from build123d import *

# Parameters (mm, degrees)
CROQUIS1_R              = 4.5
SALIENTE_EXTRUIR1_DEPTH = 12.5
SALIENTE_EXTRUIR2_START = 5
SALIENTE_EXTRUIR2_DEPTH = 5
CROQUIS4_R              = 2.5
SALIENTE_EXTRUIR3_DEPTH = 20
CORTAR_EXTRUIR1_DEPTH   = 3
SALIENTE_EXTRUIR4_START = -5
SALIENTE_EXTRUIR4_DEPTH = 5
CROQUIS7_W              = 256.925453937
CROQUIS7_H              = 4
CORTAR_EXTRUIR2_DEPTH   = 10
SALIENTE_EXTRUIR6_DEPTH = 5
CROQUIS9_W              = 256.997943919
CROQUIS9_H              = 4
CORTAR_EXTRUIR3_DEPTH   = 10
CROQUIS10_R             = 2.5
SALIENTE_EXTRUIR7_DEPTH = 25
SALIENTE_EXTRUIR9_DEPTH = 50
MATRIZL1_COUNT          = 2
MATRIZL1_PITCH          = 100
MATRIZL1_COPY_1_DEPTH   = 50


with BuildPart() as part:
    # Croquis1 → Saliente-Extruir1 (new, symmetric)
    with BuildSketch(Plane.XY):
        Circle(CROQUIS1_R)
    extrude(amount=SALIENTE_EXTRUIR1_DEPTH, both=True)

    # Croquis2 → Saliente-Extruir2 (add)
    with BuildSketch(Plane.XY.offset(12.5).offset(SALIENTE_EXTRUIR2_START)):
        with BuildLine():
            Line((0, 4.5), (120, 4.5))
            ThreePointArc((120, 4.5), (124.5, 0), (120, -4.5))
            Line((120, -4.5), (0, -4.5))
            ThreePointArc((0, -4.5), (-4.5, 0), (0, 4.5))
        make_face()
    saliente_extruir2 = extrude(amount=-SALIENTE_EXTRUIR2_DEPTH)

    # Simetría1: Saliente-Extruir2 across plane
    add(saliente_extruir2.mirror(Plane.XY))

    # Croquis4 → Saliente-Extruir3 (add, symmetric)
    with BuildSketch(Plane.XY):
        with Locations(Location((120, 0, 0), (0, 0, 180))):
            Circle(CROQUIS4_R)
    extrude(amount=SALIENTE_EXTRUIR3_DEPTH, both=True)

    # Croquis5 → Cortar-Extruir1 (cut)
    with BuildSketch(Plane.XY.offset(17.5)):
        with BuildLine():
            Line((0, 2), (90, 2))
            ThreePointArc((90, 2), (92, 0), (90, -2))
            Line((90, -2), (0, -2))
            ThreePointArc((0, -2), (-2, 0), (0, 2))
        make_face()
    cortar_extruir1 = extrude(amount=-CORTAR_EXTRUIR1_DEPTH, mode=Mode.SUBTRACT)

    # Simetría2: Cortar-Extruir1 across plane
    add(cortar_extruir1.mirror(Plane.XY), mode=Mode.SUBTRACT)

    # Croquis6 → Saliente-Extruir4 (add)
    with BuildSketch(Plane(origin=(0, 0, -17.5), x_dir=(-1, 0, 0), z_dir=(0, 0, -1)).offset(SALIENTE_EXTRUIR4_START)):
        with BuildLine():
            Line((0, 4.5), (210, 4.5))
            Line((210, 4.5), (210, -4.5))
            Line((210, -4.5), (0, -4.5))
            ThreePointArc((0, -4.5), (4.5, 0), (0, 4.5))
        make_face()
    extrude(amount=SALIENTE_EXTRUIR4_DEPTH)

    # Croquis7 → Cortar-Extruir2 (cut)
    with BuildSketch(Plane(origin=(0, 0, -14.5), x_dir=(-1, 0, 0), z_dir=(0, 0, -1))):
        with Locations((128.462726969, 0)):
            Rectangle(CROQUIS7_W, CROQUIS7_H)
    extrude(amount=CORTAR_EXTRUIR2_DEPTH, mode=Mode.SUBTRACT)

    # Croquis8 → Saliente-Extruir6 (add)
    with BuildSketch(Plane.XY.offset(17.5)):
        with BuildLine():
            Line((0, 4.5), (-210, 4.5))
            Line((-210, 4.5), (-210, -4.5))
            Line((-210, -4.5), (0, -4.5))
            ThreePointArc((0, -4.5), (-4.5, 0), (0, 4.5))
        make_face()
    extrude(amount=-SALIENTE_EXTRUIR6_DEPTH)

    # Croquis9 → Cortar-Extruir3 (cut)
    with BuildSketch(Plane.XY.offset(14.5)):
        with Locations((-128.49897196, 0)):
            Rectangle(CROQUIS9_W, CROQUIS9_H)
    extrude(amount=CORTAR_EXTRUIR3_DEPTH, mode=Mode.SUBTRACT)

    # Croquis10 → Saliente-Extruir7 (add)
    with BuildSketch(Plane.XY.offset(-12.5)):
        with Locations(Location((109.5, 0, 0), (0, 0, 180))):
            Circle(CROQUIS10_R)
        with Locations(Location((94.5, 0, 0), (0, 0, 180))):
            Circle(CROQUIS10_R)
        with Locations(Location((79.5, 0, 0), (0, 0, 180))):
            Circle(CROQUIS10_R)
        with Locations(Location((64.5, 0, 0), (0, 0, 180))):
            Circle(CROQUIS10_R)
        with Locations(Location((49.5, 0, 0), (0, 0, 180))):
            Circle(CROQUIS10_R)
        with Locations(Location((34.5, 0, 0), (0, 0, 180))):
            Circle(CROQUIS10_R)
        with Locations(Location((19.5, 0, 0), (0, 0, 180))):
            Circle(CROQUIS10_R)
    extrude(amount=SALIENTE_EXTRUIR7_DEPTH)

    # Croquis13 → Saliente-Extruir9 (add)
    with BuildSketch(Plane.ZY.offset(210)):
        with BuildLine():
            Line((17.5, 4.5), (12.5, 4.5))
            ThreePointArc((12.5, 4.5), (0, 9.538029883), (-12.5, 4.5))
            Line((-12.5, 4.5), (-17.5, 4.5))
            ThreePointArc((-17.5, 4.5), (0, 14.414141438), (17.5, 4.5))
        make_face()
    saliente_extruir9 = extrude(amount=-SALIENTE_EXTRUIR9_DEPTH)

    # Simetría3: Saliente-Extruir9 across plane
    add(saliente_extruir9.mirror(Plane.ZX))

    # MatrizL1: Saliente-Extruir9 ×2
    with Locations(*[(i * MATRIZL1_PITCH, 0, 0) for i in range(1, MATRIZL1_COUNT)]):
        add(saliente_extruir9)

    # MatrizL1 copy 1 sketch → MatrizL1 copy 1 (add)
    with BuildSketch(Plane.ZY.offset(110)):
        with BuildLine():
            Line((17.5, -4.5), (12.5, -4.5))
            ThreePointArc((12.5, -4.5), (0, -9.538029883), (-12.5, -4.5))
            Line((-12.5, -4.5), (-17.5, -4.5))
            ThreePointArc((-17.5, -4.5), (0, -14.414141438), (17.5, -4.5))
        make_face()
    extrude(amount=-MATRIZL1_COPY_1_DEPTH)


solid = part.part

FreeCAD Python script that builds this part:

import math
import FreeCAD as App
import Part
import Sketcher
from FreeCAD import Vector

doc = App.newDocument("Part")
body = doc.addObject("PartDesign::Body", "Body")

# Sketch on XY plane
sketch1 = body.newObject("Sketcher::SketchObject", "Sketch")
sketch1.AttachmentSupport = (doc.getObject("XY_Plane"), [""])
sketch1.MapMode = "FlatFace"
sketch1.addGeometry(Part.Circle(Vector(0, 0, 0), Vector(0, 0, 1), 4.5), False)
sketch1.addConstraint([
    Sketcher.Constraint("Coincident", 0, 3, -1, 1),
    Sketcher.Constraint("Diameter", 0, 9.0),
])
pad1 = body.newObject("PartDesign::Pad", "Pad")
pad1.Profile = sketch1
pad1.Length = 25
pad1.Midplane = True

# Sketch on XY plane
sketch2 = body.newObject("Sketcher::SketchObject", "Sketch001")
sketch2.AttachmentSupport = (doc.getObject("XY_Plane"), [""])
sketch2.MapMode = "FlatFace"
sketch2.AttachmentOffset = App.Placement(Vector(0, 0, 17.5), App.Rotation())
sketch2.addGeometry([
    Part.LineSegment(Vector(120, 4.5, 0), Vector(0, 4.5, 0)),
    Part.ArcOfCircle(Part.Circle(Vector(0, 0, 0), Vector(0, 0, 1), 4.5), math.radians(90), math.radians(270)),
    Part.LineSegment(Vector(0, -4.5, 0), Vector(120, -4.5, 0)),
    Part.ArcOfCircle(Part.Circle(Vector(120, 0, 0), Vector(0, 0, 1), 4.5), math.radians(-90), math.radians(90)),
], False)
sketch2.addConstraint([
    Sketcher.Constraint("Tangent", 0, 2, 1, 1),
    Sketcher.Constraint("Tangent", 1, 2, 2, 1),
    Sketcher.Constraint("Tangent", 2, 2, 3, 1),
    Sketcher.Constraint("Tangent", 3, 2, 0, 1),
    Sketcher.Constraint("Horizontal", 0),
    Sketcher.Constraint("Horizontal", 2),
    Sketcher.Constraint("Coincident", 1, 3, -1, 1),
    Sketcher.Constraint("Radius", 1, 4.5),
    Sketcher.Constraint("DistanceX", 0, 2, 0, 1, 120.0),
])
pad2 = body.newObject("PartDesign::Pad", "Pad001")
pad2.Profile = sketch2
pad2.Length = 5
pad2.Reversed = True
doc.recompute()

mirrored = body.newObject("PartDesign::Mirrored", "Mirrored")
mirrored.Originals = [pad2]
mirrored.MirrorPlane = (doc.getObject("XY_Plane"), [""])
body.Tip = mirrored

# Sketch on XY plane
sketch3 = body.newObject("Sketcher::SketchObject", "Sketch002")
sketch3.AttachmentSupport = (doc.getObject("XY_Plane"), [""])
sketch3.MapMode = "FlatFace"
sketch3.addGeometry(Part.Circle(Vector(120, 0, 0), Vector(0, 0, 1), 2.5), False)
sketch3.addConstraint([
    Sketcher.Constraint("PointOnObject", 0, 3, -1),
    Sketcher.Constraint("Diameter", 0, 5.0),
    Sketcher.Constraint("DistanceX", -1, 1, 0, 3, 120.0),
])
pad3 = body.newObject("PartDesign::Pad", "Pad002")
pad3.Profile = sketch3
pad3.Length = 40
pad3.Midplane = True

# Sketch on XY plane
sketch4 = body.newObject("Sketcher::SketchObject", "Sketch003")
sketch4.AttachmentSupport = (doc.getObject("XY_Plane"), [""])
sketch4.MapMode = "FlatFace"
sketch4.AttachmentOffset = App.Placement(Vector(0, 0, 17.5), App.Rotation())
sketch4.addGeometry([
    Part.LineSegment(Vector(90, 2, 0), Vector(0, 2, 0)),
    Part.ArcOfCircle(Part.Circle(Vector(0, 0, 0), Vector(0, 0, 1), 2), math.radians(90), math.radians(270)),
    Part.LineSegment(Vector(0, -2, 0), Vector(90, -2, 0)),
    Part.ArcOfCircle(Part.Circle(Vector(90, 0, 0), Vector(0, 0, 1), 2), math.radians(-90), math.radians(90)),
], False)
sketch4.addConstraint([
    Sketcher.Constraint("Tangent", 0, 2, 1, 1),
    Sketcher.Constraint("Tangent", 1, 2, 2, 1),
    Sketcher.Constraint("Tangent", 2, 2, 3, 1),
    Sketcher.Constraint("Tangent", 3, 2, 0, 1),
    Sketcher.Constraint("Horizontal", 0),
    Sketcher.Constraint("Horizontal", 2),
    Sketcher.Constraint("Coincident", 1, 3, -1, 1),
    Sketcher.Constraint("Radius", 1, 2.0),
    Sketcher.Constraint("DistanceX", 0, 2, 0, 1, 90.0),
])
pocket1 = body.newObject("PartDesign::Pocket", "Pocket")
pocket1.Profile = sketch4
pocket1.Length = 3
doc.recompute()

mirrored2 = body.newObject("PartDesign::Mirrored", "Mirrored001")
mirrored2.Originals = [pocket1]
mirrored2.MirrorPlane = (doc.getObject("XY_Plane"), [""])
body.Tip = mirrored2

# Sketch on XY plane
sketch5 = body.newObject("Sketcher::SketchObject", "Sketch004")
sketch5.AttachmentSupport = (doc.getObject("XY_Plane"), [""])
sketch5.MapMode = "FlatFace"
sketch5.AttachmentOffset = App.Placement(Vector(0, 0, -12.5), App.Rotation())
sketch5.addGeometry([
    Part.LineSegment(Vector(-210, 4.5, 0), Vector(0, 4.5, 0)),
    Part.ArcOfCircle(Part.Circle(Vector(0, 0, 0), Vector(0, 0, 1), 4.5), math.radians(90), math.radians(270)),
    Part.LineSegment(Vector(0, -4.5, 0), Vector(-210, -4.5, 0)),
    Part.LineSegment(Vector(-210, -4.5, 0), Vector(-210, 4.5, 0)),
], False)
sketch5.addConstraint([
    Sketcher.Constraint("Tangent", 0, 2, 1, 1),
    Sketcher.Constraint("Tangent", 1, 2, 2, 1),
    Sketcher.Constraint("Coincident", 2, 2, 3, 1),
    Sketcher.Constraint("Coincident", 3, 2, 0, 1),
    Sketcher.Constraint("Horizontal", 0),
    Sketcher.Constraint("Horizontal", 2),
    Sketcher.Constraint("Vertical", 3),
    Sketcher.Constraint("Coincident", 1, 3, -1, 1),
    Sketcher.Constraint("Radius", 1, 4.5),
    Sketcher.Constraint("DistanceX", 0, 1, 0, 2, 210.0),
])
pad4 = body.newObject("PartDesign::Pad", "Pad003")
pad4.Profile = sketch5
pad4.Length = 5
pad4.Reversed = True

# Sketch on XY plane
sketch6 = body.newObject("Sketcher::SketchObject", "Sketch005")
sketch6.AttachmentSupport = (doc.getObject("XY_Plane"), [""])
sketch6.MapMode = "FlatFace"
sketch6.AttachmentOffset = App.Placement(Vector(0, 0, -14.5), App.Rotation())
sketch6.addGeometry([
    Part.LineSegment(Vector(0, 2, 0), Vector(0, -2, 0)),
    Part.LineSegment(Vector(0, -2, 0), Vector(-256.9, -2, 0)),
    Part.LineSegment(Vector(-256.9, -2, 0), Vector(-256.9, 2, 0)),
    Part.LineSegment(Vector(-256.9, 2, 0), Vector(0, 2, 0)),
], False)
sketch6.addConstraint([
    Sketcher.Constraint("Coincident", 0, 2, 1, 1),
    Sketcher.Constraint("Coincident", 1, 2, 2, 1),
    Sketcher.Constraint("Coincident", 2, 2, 3, 1),
    Sketcher.Constraint("Coincident", 3, 2, 0, 1),
    Sketcher.Constraint("Vertical", 0),
    Sketcher.Constraint("Horizontal", 1),
    Sketcher.Constraint("Vertical", 2),
    Sketcher.Constraint("Horizontal", 3),
    Sketcher.Constraint("Symmetric", 0, 2, 3, 2, -1, 1),
    Sketcher.Constraint("DistanceY", 0, 2, 0, 1, 4.0),
    Sketcher.Constraint("DistanceX", 1, 2, 1, 1, 256.925454),
])
pocket2 = body.newObject("PartDesign::Pocket", "Pocket001")
pocket2.Profile = sketch6
pocket2.Length = 10

# Sketch on XY plane
sketch7 = body.newObject("Sketcher::SketchObject", "Sketch006")
sketch7.AttachmentSupport = (doc.getObject("XY_Plane"), [""])
sketch7.MapMode = "FlatFace"
sketch7.AttachmentOffset = App.Placement(Vector(0, 0, 17.5), App.Rotation())
sketch7.addGeometry([
    Part.LineSegment(Vector(0, 4.5, 0), Vector(-210, 4.5, 0)),
    Part.LineSegment(Vector(-210, 4.5, 0), Vector(-210, -4.5, 0)),
    Part.LineSegment(Vector(-210, -4.5, 0), Vector(0, -4.5, 0)),
    Part.ArcOfCircle(Part.Circle(Vector(0, 0, 0), Vector(0, 0, 1), 4.5), math.radians(90), math.radians(270)),
], False)
sketch7.addConstraint([
    Sketcher.Constraint("Coincident", 0, 2, 1, 1),
    Sketcher.Constraint("Coincident", 1, 2, 2, 1),
    Sketcher.Constraint("Tangent", 2, 2, 3, 2),
    Sketcher.Constraint("Tangent", 3, 1, 0, 1),
    Sketcher.Constraint("Horizontal", 0),
    Sketcher.Constraint("Vertical", 1),
    Sketcher.Constraint("Horizontal", 2),
    Sketcher.Constraint("Coincident", 3, 3, -1, 1),
    Sketcher.Constraint("Radius", 3, 4.5),
    Sketcher.Constraint("DistanceX", 0, 2, 0, 1, 210.0),
])
pad5 = body.newObject("PartDesign::Pad", "Pad004")
pad5.Profile = sketch7
pad5.Length = 5
pad5.Reversed = True

# Sketch on XY plane
sketch8 = body.newObject("Sketcher::SketchObject", "Sketch007")
sketch8.AttachmentSupport = (doc.getObject("XY_Plane"), [""])
sketch8.MapMode = "FlatFace"
sketch8.AttachmentOffset = App.Placement(Vector(0, 0, 14.5), App.Rotation())
sketch8.addGeometry([
    Part.LineSegment(Vector(-257, 2, 0), Vector(-257, -2, 0)),
    Part.LineSegment(Vector(-257, -2, 0), Vector(0, -2, 0)),
    Part.LineSegment(Vector(0, -2, 0), Vector(0, 2, 0)),
    Part.LineSegment(Vector(0, 2, 0), Vector(-257, 2, 0)),
], False)
sketch8.addConstraint([
    Sketcher.Constraint("Coincident", 0, 2, 1, 1),
    Sketcher.Constraint("Coincident", 1, 2, 2, 1),
    Sketcher.Constraint("Coincident", 2, 2, 3, 1),
    Sketcher.Constraint("Coincident", 3, 2, 0, 1),
    Sketcher.Constraint("Vertical", 0),
    Sketcher.Constraint("Horizontal", 1),
    Sketcher.Constraint("Vertical", 2),
    Sketcher.Constraint("Horizontal", 3),
    Sketcher.Constraint("Symmetric", 1, 2, 2, 2, -1, 1),
    Sketcher.Constraint("DistanceY", 0, 2, 0, 1, 4.0),
    Sketcher.Constraint("DistanceX", 1, 1, 1, 2, 256.997944),
])
pocket3 = body.newObject("PartDesign::Pocket", "Pocket002")
pocket3.Profile = sketch8
pocket3.Length = 10
pocket3.Reversed = True

# Sketch on XY plane
sketch9 = body.newObject("Sketcher::SketchObject", "Sketch008")
sketch9.AttachmentSupport = (doc.getObject("XY_Plane"), [""])
sketch9.MapMode = "FlatFace"
sketch9.AttachmentOffset = App.Placement(Vector(0, 0, -12.5), App.Rotation())
sketch9.addGeometry([
    Part.Circle(Vector(109.5, 0, 0), Vector(0, 0, 1), 2.5),  # 0
    Part.Circle(Vector(94.5, 0, 0), Vector(0, 0, 1), 2.5),  # 1
    Part.Circle(Vector(79.5, 0, 0), Vector(0, 0, 1), 2.5),  # 2
    Part.Circle(Vector(64.5, 0, 0), Vector(0, 0, 1), 2.5),  # 3
    Part.Circle(Vector(49.5, 0, 0), Vector(0, 0, 1), 2.5),  # 4
    Part.Circle(Vector(34.5, 0, 0), Vector(0, 0, 1), 2.5),  # 5
    Part.Circle(Vector(19.5, 0, 0), Vector(0, 0, 1), 2.5),  # 6
], False)
sketch9.addConstraint([
    Sketcher.Constraint("Equal", 0, 1),
    Sketcher.Constraint("Equal", 1, 2),
    Sketcher.Constraint("Equal", 2, 3),
    Sketcher.Constraint("Equal", 3, 4),
    Sketcher.Constraint("Equal", 4, 5),
    Sketcher.Constraint("Equal", 5, 6),
    Sketcher.Constraint("PointOnObject", 0, 3, -1),
    Sketcher.Constraint("PointOnObject", 1, 3, -1),
    Sketcher.Constraint("PointOnObject", 2, 3, -1),
    Sketcher.Constraint("PointOnObject", 3, 3, -1),
    Sketcher.Constraint("PointOnObject", 4, 3, -1),
    Sketcher.Constraint("PointOnObject", 5, 3, -1),
    Sketcher.Constraint("PointOnObject", 6, 3, -1),
    Sketcher.Constraint("Diameter", 0, 5.0),
    Sketcher.Constraint("DistanceX", 1, 3, 0, 3, 15.0),
    Sketcher.Constraint("DistanceX", 2, 3, 1, 3, 15.0),
    Sketcher.Constraint("DistanceX", 3, 3, 2, 3, 15.0),
    Sketcher.Constraint("DistanceX", 4, 3, 3, 3, 15.0),
    Sketcher.Constraint("DistanceX", 5, 3, 4, 3, 15.0),
    Sketcher.Constraint("DistanceX", 6, 3, 5, 3, 15.0),
    Sketcher.Constraint("DistanceX", -1, 1, 0, 3, 109.5),
])
pad6 = body.newObject("PartDesign::Pad", "Pad005")
pad6.Profile = sketch9
pad6.Length = 25

# Sketch on YZ plane
sketch10 = body.newObject("Sketcher::SketchObject", "Sketch009")
sketch10.AttachmentSupport = (doc.getObject("YZ_Plane"), [""])
sketch10.MapMode = "FlatFace"
sketch10.AttachmentOffset = App.Placement(Vector(0, 0, -210), App.Rotation())
sketch10.addGeometry([
    Part.LineSegment(Vector(4, 12, 0), Vector(4, 18, 0)),
    Part.ArcOfCircle(Part.Circle(Vector(-6, 0, 0), Vector(0, 0, 1), 20), math.radians(-59), math.radians(59)),
    Part.LineSegment(Vector(4, -18, 0), Vector(4, -12, 0)),
    Part.ArcOfCircle(Part.Circle(Vector(-8, 0, 0), Vector(0, 0, 1), 18), math.radians(-44), math.radians(44)),
], False)
sketch10.addConstraint([
    Sketcher.Constraint("Coincident", 0, 2, 1, 2),
    Sketcher.Constraint("Coincident", 1, 1, 2, 1),
    Sketcher.Constraint("Coincident", 2, 2, 3, 1),
    Sketcher.Constraint("Coincident", 3, 2, 0, 1),
    Sketcher.Constraint("Vertical", 0),
    Sketcher.Constraint("Vertical", 2),
    Sketcher.Constraint("Symmetric", 0, 2, 1, 1, -1),
    Sketcher.Constraint("PointOnObject", 3, 3, -1),
    Sketcher.Constraint("DistanceY", 0, 1, 0, 2, 5.0),
    Sketcher.Constraint("DistanceY", 1, 1, 0, 2, 35.0),
    Sketcher.Constraint("DistanceX", -1, 1, 0, 2, 4.5),
    Sketcher.Constraint("DistanceX", 3, 3, 1, 3, 2.5),
    Sketcher.Constraint("Radius", 1, 20.40218),
])
pad7 = body.newObject("PartDesign::Pad", "Pad006")
pad7.Profile = sketch10
pad7.Length = 50
doc.recompute()

mirrored3 = body.newObject("PartDesign::Mirrored", "Mirrored002")
mirrored3.Originals = [pad7]
mirrored3.MirrorPlane = (doc.getObject("XZ_Plane"), [""])
body.Tip = mirrored3
doc.recompute()

linearpattern = body.newObject("PartDesign::LinearPattern", "LinearPattern")
linearpattern.Originals = [pad7]
linearpattern.Direction = (doc.getObject("X_Axis"), [""])
linearpattern.Mode = "offset"
linearpattern.Offset = 100
linearpattern.Occurrences = 2
body.Tip = linearpattern

# Sketch on YZ plane
sketch11 = body.newObject("Sketcher::SketchObject", "Sketch010")
sketch11.AttachmentSupport = (doc.getObject("YZ_Plane"), [""])
sketch11.MapMode = "FlatFace"
sketch11.AttachmentOffset = App.Placement(Vector(0, 0, -110), App.Rotation())
sketch11.addGeometry([
    Part.LineSegment(Vector(-4, 18, 0), Vector(-4, 12, 0)),
    Part.ArcOfCircle(Part.Circle(Vector(8, 0, 0), Vector(0, 0, 1), 18), math.radians(136), math.radians(224)),
    Part.LineSegment(Vector(-4, -12, 0), Vector(-4, -18, 0)),
    Part.ArcOfCircle(Part.Circle(Vector(6, 0, 0), Vector(0, 0, 1), 20), math.radians(121), math.radians(239)),
], False)
sketch11.addConstraint([
    Sketcher.Constraint("Coincident", 0, 2, 1, 1),
    Sketcher.Constraint("Coincident", 1, 2, 2, 1),
    Sketcher.Constraint("Coincident", 2, 2, 3, 2),
    Sketcher.Constraint("Coincident", 3, 1, 0, 1),
    Sketcher.Constraint("Vertical", 0),
    Sketcher.Constraint("Vertical", 2),
    Sketcher.Constraint("Symmetric", 0, 2, 1, 2, -1),
    Sketcher.Constraint("PointOnObject", 3, 3, -1),
    Sketcher.Constraint("DistanceY", 0, 2, 0, 1, 5.0),
    Sketcher.Constraint("DistanceY", 1, 2, 0, 2, 25.0),
    Sketcher.Constraint("DistanceX", 0, 2, -1, 1, 4.5),
    Sketcher.Constraint("DistanceX", 3, 3, 1, 3, 2.5),
    Sketcher.Constraint("Radius", 1, 18.026069),
])
pad8 = body.newObject("PartDesign::Pad", "Pad007")
pad8.Profile = sketch11
pad8.Length = 50

doc.recompute()
